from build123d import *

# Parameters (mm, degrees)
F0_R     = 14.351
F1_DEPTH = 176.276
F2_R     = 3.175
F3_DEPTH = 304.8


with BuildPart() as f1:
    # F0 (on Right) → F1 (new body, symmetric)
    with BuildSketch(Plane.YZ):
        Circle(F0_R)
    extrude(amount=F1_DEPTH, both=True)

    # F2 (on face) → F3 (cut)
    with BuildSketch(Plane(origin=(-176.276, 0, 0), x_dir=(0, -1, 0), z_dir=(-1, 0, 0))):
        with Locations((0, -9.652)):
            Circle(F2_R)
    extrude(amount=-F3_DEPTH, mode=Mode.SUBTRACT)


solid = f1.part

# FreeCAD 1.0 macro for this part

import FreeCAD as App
import Part
import Sketcher

V = App.Vector
Q = App.Units.Quantity

doc = App.newDocument("Part")
body = doc.addObject("PartDesign::Body", "Body")

# Sketch on YZ plane
sketch1 = body.newObject("Sketcher::SketchObject", "Sketch")
sketch1.AttachmentSupport = (doc.getObject("YZ_Plane"), [""])
sketch1.MapMode = "FlatFace"
sketch1.addGeometry(Part.Circle(V(0, 0, 0), V(0, 0, 1), 14.351), False)
sketch1.addConstraint([
    Sketcher.Constraint("Coincident", 0, 3, -1, 1),
    Sketcher.Constraint("Diameter", 0, Q("1.13 in")),
])
pad1 = body.newObject("PartDesign::Pad", "Pad")
pad1.Profile = sketch1
pad1.Length = Q("13.88 in")
pad1.Midplane = True

# Sketch on YZ plane
sketch2 = body.newObject("Sketcher::SketchObject", "Sketch001")
sketch2.AttachmentSupport = (doc.getObject("YZ_Plane"), [""])
sketch2.MapMode = "FlatFace"
sketch2.AttachmentOffset = App.Placement(V(0, 0, -6.94 * 25.4), App.Rotation())
sketch2.addGeometry(Part.Circle(V(0, -9.652, 0), V(0, 0, 1), 3.175), False)
sketch2.addConstraint([
    Sketcher.Constraint("PointOnObject", 0, 3, -2),
    Sketcher.Constraint("Diameter", 0, Q("0.25 in")),
    Sketcher.Constraint("DistanceY", 0, 3, -1, 1, Q("0.38 in")),
])
pocket1 = body.newObject("PartDesign::Pocket", "Pocket")
pocket1.Profile = sketch2
pocket1.Length = Q("12 in")
pocket1.Reversed = True

doc.recompute()
